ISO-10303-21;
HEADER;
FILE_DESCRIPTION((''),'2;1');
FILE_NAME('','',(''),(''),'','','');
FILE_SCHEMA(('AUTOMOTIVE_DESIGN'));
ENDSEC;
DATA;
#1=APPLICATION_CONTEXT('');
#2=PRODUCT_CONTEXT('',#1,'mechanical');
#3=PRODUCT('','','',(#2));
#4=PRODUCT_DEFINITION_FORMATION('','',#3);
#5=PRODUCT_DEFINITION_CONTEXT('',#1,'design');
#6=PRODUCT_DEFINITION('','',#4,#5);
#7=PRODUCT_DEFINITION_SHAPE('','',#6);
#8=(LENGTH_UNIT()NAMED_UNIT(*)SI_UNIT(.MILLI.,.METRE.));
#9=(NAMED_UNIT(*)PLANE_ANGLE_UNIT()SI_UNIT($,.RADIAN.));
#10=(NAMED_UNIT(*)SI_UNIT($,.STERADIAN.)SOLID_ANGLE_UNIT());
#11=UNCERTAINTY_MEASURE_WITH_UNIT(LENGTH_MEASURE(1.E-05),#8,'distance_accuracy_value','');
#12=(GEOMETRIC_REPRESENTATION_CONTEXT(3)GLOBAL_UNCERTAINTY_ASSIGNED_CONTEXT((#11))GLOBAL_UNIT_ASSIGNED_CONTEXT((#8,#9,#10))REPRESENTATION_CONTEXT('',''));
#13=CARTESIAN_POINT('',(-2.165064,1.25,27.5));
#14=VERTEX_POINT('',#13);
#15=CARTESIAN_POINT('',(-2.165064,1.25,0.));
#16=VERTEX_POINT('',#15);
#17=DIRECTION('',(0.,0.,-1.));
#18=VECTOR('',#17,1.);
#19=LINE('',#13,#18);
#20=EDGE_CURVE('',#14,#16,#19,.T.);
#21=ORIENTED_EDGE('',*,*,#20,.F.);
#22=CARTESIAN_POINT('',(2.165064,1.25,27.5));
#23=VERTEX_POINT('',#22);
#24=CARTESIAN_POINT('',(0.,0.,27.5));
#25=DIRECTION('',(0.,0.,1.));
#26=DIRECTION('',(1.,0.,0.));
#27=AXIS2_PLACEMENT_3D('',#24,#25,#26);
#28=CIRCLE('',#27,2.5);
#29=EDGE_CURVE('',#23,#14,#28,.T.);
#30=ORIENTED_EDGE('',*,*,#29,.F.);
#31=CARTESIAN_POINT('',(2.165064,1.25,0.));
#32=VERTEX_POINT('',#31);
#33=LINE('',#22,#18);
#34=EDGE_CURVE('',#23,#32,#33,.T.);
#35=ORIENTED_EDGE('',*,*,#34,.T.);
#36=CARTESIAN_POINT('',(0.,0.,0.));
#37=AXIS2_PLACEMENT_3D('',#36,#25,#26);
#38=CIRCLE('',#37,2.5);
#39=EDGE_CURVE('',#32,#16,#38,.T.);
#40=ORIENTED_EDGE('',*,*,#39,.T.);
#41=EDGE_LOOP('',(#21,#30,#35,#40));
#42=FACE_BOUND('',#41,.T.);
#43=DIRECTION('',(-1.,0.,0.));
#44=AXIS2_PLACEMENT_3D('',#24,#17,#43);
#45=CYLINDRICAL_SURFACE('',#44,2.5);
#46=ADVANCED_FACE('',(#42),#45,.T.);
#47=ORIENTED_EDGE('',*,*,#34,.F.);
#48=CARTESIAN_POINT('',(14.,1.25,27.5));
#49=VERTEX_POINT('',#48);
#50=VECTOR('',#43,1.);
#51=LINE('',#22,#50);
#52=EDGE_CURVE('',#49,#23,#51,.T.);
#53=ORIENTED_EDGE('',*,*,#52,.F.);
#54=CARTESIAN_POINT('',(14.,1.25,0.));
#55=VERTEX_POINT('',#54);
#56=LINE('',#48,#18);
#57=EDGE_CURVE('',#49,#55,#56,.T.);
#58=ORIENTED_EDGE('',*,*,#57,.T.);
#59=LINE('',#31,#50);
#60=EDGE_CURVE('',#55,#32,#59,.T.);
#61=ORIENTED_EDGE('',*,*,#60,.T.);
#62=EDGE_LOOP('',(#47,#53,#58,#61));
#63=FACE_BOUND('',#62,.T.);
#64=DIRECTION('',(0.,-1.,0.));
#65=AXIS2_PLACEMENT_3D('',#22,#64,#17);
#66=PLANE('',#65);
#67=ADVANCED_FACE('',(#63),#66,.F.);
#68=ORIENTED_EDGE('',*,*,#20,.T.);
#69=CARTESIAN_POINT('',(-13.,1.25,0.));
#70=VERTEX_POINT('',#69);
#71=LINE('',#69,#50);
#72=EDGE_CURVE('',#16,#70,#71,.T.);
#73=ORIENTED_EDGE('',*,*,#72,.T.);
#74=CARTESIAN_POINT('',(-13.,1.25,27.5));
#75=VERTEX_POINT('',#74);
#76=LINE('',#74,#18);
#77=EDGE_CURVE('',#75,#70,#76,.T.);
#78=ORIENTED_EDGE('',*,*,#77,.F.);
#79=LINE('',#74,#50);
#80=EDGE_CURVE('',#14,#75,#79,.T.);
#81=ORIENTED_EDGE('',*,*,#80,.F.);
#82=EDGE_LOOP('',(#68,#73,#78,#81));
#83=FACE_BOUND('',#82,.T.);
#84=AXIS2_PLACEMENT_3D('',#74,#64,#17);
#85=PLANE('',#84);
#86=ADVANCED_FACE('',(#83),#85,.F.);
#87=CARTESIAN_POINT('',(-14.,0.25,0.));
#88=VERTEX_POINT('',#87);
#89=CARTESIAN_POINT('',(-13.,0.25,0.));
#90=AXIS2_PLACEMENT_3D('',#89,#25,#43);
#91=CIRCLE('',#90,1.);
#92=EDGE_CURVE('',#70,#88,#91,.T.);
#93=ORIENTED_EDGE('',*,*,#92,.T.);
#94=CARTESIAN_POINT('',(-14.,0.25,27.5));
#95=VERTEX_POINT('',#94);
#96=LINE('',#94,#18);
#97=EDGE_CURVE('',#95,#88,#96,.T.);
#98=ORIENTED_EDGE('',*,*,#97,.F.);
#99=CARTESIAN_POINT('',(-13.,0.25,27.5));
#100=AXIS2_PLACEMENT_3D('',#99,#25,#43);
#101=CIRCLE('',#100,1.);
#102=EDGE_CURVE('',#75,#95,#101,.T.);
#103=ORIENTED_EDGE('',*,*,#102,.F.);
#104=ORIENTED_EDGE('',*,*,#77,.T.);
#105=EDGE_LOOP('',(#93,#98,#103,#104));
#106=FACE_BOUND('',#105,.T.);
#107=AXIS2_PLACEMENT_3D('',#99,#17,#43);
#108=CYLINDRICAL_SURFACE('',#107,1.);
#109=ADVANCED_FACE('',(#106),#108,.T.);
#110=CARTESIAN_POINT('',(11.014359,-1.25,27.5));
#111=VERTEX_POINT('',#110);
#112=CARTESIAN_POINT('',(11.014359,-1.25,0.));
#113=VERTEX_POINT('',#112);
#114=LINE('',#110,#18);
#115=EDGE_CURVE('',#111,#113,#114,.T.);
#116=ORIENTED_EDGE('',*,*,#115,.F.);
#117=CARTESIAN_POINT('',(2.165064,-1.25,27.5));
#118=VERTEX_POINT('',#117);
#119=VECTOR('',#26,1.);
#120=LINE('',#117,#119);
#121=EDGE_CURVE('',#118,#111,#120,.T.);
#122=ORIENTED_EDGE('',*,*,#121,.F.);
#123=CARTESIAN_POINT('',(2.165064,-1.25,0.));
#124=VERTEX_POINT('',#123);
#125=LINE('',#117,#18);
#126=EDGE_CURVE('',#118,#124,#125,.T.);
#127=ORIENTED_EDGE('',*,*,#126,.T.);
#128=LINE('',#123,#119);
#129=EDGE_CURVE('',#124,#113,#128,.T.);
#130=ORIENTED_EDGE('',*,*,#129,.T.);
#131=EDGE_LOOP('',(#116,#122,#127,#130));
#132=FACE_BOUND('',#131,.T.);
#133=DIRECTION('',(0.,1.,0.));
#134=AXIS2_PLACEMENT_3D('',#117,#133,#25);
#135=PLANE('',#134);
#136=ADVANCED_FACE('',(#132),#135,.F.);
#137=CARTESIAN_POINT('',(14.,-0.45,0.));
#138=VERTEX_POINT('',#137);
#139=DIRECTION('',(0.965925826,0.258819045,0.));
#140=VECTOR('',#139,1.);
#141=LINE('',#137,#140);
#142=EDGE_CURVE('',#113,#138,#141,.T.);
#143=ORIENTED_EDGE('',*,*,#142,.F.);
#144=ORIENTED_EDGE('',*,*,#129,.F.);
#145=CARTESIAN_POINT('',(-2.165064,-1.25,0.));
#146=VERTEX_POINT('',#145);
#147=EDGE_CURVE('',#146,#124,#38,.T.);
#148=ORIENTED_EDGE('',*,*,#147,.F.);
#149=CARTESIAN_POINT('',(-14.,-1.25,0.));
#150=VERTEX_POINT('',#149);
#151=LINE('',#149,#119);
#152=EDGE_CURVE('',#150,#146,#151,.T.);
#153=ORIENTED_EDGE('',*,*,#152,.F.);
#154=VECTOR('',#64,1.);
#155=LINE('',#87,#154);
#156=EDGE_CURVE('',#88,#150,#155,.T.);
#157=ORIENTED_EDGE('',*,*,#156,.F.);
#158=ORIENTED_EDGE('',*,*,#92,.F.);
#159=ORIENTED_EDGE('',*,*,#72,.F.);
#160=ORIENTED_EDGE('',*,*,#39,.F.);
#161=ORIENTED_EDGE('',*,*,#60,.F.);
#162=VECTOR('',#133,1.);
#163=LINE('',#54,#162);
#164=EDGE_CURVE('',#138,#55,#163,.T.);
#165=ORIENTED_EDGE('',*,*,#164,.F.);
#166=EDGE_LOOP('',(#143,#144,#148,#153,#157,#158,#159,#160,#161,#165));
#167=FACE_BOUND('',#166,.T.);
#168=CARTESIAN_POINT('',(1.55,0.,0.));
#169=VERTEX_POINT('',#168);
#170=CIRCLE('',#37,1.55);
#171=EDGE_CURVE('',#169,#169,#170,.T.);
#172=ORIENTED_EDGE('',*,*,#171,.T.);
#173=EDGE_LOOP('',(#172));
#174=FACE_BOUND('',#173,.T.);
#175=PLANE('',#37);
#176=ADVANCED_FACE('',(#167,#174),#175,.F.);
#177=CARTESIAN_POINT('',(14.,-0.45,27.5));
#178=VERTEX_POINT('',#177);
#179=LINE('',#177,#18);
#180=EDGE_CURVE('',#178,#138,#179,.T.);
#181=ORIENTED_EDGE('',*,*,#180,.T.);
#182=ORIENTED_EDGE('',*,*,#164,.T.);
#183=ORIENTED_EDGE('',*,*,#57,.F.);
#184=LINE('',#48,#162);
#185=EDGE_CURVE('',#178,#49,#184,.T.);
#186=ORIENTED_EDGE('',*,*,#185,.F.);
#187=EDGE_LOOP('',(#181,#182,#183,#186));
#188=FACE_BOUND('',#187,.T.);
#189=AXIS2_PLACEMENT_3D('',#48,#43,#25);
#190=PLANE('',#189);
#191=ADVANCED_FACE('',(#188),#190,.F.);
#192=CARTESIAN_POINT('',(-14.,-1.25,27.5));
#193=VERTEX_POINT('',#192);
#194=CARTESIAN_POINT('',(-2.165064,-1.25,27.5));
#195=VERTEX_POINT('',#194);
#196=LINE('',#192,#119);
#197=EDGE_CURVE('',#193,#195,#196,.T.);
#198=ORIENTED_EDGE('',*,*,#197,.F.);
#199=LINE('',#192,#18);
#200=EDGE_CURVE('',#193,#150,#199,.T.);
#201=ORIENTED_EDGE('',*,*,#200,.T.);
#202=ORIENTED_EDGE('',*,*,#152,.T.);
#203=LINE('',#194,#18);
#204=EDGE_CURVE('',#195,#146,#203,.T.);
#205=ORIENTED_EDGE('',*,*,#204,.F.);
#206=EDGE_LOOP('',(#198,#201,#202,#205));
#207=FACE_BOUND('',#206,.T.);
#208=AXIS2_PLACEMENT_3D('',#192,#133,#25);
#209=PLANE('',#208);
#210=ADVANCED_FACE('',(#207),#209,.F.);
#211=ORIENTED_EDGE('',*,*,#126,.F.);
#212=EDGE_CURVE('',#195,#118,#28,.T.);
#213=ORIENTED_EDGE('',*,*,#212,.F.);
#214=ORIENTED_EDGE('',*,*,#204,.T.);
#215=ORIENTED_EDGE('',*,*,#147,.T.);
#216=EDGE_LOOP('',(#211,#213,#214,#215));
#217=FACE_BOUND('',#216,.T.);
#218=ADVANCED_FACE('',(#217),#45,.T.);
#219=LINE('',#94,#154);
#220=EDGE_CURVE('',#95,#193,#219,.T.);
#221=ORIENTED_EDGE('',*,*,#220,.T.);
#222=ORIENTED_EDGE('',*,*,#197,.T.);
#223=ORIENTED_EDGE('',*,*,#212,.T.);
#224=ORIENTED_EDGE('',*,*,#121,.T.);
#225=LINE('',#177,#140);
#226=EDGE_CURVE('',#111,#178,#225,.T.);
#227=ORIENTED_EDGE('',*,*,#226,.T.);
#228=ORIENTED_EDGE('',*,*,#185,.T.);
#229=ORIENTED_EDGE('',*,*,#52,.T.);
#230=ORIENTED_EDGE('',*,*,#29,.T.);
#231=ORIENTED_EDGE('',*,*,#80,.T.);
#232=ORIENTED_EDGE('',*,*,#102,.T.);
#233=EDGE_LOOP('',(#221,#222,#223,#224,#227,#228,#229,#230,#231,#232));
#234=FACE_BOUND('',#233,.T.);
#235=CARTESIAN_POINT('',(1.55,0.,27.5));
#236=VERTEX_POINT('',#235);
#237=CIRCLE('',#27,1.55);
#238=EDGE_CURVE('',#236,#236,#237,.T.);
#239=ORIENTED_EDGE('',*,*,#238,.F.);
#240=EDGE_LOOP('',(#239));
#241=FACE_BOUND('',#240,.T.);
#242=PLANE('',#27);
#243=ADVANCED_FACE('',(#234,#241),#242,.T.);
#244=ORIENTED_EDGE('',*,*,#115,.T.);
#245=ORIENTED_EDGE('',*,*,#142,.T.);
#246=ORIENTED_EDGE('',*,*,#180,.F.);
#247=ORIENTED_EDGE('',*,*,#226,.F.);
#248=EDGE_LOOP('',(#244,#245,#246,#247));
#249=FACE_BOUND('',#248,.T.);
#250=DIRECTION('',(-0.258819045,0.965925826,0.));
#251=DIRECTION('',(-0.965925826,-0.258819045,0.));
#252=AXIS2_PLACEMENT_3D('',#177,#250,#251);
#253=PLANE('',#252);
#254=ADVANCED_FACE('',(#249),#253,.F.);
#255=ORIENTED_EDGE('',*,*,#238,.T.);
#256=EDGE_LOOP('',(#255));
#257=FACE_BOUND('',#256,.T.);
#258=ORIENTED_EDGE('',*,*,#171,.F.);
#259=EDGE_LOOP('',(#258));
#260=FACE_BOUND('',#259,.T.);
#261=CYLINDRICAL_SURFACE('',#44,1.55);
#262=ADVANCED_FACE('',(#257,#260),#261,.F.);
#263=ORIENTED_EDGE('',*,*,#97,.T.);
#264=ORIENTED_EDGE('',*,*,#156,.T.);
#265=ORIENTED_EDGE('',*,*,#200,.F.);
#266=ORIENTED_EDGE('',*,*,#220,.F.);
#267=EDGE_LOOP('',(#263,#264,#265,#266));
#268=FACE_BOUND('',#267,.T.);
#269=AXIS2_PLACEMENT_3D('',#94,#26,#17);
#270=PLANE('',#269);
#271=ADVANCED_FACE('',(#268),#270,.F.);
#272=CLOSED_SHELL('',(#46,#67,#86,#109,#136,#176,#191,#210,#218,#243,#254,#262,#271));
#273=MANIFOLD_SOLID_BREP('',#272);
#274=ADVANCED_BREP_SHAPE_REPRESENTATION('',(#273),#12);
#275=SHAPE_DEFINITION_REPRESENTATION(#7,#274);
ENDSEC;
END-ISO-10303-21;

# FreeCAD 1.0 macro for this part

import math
import FreeCAD as App
import Part
import Sketcher
Q = App.Units.Quantity

doc = App.newDocument("Part")
body = doc.addObject("PartDesign::Body", "Body")

sketch1 = body.newObject("Sketcher::SketchObject", "Sketch")
sketch1.AttachmentSupport = (doc.getObject("XY_Plane"), [""])
sketch1.MapMode = "FlatFace"
sketch1.addGeometry([
    Part.LineSegment(App.Vector(14, 1.2, 0), App.Vector(2.2, 1.2, 0)),
    Part.ArcOfCircle(Part.Circle(App.Vector(0, 0, 0), App.Vector(0, 0, 1), 2.5), math.radians(30), math.radians(150)),
    Part.LineSegment(App.Vector(-2.2, 1.2, 0), App.Vector(-13, 1.2, 0)),
    Part.ArcOfCircle(Part.Circle(App.Vector(-13, 0.2, 0), App.Vector(0, 0, 1), 1), math.radians(90), math.radians(180)),
    Part.LineSegment(App.Vector(-14, 0.2, 0), App.Vector(-14, -1.2, 0)),
    Part.LineSegment(App.Vector(-14, -1.2, 0), App.Vector(-2.2, -1.2, 0)),
    Part.ArcOfCircle(Part.Circle(App.Vector(0, 0, 0), App.Vector(0, 0, 1), 2.5), math.radians(-150), math.radians(-30)),
    Part.LineSegment(App.Vector(2.2, -1.2, 0), App.Vector(11, -1.2, 0)),
    Part.LineSegment(App.Vector(11, -1.2, 0), App.Vector(14, -0.5, 0)),
    Part.LineSegment(App.Vector(14, -0.5, 0), App.Vector(14, 1.2, 0)),
    Part.Circle(App.Vector(0, 0, 0), App.Vector(0, 0, 1), 1.6),
], False)
sketch1.addConstraint([
    Sketcher.Constraint("Coincident", 0, 2, 1, 1),
    Sketcher.Constraint("Coincident", 1, 2, 2, 1),
    Sketcher.Constraint("Tangent", 2, 2, 3, 1),
    Sketcher.Constraint("Tangent", 3, 2, 4, 1),
    Sketcher.Constraint("Coincident", 4, 2, 5, 1),
    Sketcher.Constraint("Coincident", 5, 2, 6, 1),
    Sketcher.Constraint("Coincident", 6, 2, 7, 1),
    Sketcher.Constraint("Coincident", 7, 2, 8, 1),
    Sketcher.Constraint("Coincident", 8, 2, 9, 1),
    Sketcher.Constraint("Coincident", 9, 2, 0, 1),
    Sketcher.Constraint("Horizontal", 0),
    Sketcher.Constraint("Horizontal", 2),
    Sketcher.Constraint("Vertical", 4),
    Sketcher.Constraint("Horizontal", 5),
    Sketcher.Constraint("Horizontal", 7),
    Sketcher.Constraint("Vertical", 9),
    Sketcher.Constraint("Coincident", 1, 3, -1, 1),
    Sketcher.Constraint("Coincident", 6, 3, -1, 1),
    Sketcher.Constraint("Coincident", 10, 3, -1, 1),
    Sketcher.Constraint("Equal", 1, 6),
    Sketcher.Constraint("Symmetric", 4, 2, 9, 2, -1, 1),
    Sketcher.Constraint("Horizontal", 0, 2, 1, 2),
    Sketcher.Constraint("Horizontal", 5, 2, 6, 2),
    Sketcher.Constraint("Radius", 3, Q("1 mm")),
    Sketcher.Constraint("Diameter", 10, Q("3.1 mm")),
    Sketcher.Constraint("Radius", 1, Q("2.5 mm")),
    Sketcher.Constraint("Angle", 8, Q("15 deg")),
    Sketcher.Constraint("DistanceY", 4, 2, 4, 1, Q("1.5 mm")),
    Sketcher.Constraint("DistanceY", 9, 1, 9, 2, Q("1.7 mm")),
    Sketcher.Constraint("DistanceX", 3, 3, -1, 1, Q("13 mm")),
])
pad1 = body.newObject("PartDesign::Pad", "Pad")
pad1.Profile = sketch1
pad1.Length = 27.5

doc.recompute()
